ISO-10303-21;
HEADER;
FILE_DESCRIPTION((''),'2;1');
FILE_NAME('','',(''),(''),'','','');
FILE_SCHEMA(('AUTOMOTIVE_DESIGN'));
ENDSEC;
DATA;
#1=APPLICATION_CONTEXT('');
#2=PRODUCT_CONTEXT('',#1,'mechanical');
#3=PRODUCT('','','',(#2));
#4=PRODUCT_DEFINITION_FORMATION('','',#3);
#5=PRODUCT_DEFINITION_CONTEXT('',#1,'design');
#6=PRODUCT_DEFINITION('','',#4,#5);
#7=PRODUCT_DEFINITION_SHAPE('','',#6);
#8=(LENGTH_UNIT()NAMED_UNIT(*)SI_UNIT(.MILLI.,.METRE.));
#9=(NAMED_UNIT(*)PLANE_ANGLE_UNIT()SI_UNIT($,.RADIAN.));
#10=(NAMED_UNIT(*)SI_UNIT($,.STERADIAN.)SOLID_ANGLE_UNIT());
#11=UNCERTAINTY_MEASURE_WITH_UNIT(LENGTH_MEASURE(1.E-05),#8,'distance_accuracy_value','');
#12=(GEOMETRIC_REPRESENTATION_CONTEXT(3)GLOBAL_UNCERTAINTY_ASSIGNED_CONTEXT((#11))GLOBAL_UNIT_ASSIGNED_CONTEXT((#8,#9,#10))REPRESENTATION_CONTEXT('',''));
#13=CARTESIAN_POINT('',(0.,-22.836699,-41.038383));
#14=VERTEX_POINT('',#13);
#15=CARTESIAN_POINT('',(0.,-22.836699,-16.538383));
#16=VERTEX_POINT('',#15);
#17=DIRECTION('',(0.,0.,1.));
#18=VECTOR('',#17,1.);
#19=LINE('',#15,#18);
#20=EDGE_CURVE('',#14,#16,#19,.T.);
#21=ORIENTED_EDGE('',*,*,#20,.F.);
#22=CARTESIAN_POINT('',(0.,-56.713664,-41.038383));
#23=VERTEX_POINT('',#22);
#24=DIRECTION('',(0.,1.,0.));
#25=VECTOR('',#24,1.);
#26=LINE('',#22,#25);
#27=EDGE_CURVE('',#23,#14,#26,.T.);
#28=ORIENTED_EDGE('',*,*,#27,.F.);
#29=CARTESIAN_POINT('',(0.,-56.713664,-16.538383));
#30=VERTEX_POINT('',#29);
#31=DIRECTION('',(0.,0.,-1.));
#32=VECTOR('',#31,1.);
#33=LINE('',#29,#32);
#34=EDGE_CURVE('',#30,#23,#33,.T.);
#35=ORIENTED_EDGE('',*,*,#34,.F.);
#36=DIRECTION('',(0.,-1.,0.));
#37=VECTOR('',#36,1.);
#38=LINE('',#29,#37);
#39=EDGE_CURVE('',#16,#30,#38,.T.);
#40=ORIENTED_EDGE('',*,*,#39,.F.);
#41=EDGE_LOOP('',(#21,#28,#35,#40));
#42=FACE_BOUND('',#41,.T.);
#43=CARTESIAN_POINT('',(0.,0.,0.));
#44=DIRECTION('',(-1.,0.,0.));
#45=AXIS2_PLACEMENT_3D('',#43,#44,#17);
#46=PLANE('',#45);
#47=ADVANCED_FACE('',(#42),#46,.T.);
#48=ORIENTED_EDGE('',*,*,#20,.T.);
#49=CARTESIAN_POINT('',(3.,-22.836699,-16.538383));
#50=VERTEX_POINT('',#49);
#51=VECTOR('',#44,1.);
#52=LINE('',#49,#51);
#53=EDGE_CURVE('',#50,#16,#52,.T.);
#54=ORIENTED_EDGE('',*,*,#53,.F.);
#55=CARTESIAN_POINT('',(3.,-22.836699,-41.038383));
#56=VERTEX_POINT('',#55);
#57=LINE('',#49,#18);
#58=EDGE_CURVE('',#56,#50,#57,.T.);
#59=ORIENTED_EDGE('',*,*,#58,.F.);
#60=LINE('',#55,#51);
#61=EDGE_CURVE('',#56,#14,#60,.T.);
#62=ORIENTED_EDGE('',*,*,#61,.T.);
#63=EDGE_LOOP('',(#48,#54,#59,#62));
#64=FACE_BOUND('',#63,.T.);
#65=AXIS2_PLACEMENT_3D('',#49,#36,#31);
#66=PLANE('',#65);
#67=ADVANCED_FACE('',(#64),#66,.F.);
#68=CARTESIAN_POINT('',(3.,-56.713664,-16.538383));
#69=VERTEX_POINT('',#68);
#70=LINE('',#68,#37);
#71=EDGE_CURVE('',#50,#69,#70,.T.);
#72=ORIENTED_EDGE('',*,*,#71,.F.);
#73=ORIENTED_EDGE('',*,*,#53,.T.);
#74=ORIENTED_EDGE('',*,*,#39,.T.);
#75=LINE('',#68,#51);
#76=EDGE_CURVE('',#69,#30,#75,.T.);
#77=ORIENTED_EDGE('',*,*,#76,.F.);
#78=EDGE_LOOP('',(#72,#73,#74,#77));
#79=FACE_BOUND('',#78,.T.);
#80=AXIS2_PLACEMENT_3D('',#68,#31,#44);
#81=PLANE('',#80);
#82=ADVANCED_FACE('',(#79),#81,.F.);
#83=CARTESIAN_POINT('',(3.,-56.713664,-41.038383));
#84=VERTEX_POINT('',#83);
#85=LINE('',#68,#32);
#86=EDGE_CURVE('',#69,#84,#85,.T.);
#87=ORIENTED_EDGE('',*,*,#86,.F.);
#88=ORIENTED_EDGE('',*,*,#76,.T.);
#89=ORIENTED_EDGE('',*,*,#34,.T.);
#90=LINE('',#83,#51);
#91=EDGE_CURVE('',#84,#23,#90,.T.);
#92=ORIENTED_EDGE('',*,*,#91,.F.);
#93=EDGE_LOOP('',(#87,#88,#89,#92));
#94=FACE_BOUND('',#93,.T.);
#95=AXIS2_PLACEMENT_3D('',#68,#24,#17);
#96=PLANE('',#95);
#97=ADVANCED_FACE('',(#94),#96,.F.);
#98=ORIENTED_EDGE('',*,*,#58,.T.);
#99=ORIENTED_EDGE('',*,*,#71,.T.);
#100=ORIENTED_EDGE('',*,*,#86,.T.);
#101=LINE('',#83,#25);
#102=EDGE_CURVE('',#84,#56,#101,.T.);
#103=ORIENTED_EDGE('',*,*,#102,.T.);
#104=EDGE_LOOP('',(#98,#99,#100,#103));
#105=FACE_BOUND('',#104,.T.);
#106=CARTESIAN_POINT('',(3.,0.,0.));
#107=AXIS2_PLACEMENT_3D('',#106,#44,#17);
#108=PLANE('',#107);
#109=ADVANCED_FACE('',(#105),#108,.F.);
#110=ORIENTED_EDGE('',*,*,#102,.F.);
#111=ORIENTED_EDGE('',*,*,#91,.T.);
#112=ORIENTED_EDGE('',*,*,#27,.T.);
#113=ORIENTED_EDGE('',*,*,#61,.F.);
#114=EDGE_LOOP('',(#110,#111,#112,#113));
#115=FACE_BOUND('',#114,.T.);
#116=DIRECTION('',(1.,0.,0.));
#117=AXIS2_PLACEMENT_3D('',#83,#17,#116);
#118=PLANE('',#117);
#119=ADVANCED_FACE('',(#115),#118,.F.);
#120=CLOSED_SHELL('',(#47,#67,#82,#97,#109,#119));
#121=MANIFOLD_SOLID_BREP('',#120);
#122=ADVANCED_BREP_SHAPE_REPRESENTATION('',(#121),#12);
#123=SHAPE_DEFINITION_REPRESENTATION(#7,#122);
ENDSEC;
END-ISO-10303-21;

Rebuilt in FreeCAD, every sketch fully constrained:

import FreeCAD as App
import Part
import Sketcher
from FreeCAD import Vector
Q = App.Units.Quantity

doc = App.newDocument("Part")
body = doc.addObject("PartDesign::Body", "Body")

sketch1 = body.newObject("Sketcher::SketchObject", "Sketch")
sketch1.AttachmentSupport = (doc.getObject("YZ_Plane"), [""])
sketch1.MapMode = "FlatFace"
sketch1.addGeometry(Part.LineSegment(Vector(-22.836699, -16.538383, 0), Vector(-56.713664, -16.538383, 0)), False)
sketch1.addGeometry(Part.LineSegment(Vector(-56.713664, -16.538383, 0), Vector(-56.713664, -41.038383, 0)), False)
sketch1.addGeometry(Part.LineSegment(Vector(-56.713664, -41.038383, 0), Vector(-22.836699, -41.038383, 0)), False)
sketch1.addGeometry(Part.LineSegment(Vector(-22.836699, -41.038383, 0), Vector(-22.836699, -16.538383, 0)), False)
sketch1.addConstraint(Sketcher.Constraint("Coincident", 0, 2, 1, 1))
sketch1.addConstraint(Sketcher.Constraint("Coincident", 1, 2, 2, 1))
sketch1.addConstraint(Sketcher.Constraint("Coincident", 2, 2, 3, 1))
sketch1.addConstraint(Sketcher.Constraint("Coincident", 3, 2, 0, 1))
sketch1.addConstraint(Sketcher.Constraint("Horizontal", 0))
sketch1.addConstraint(Sketcher.Constraint("Vertical", 1))
sketch1.addConstraint(Sketcher.Constraint("Horizontal", 2))
sketch1.addConstraint(Sketcher.Constraint("Vertical", 3))
sketch1.addConstraint(Sketcher.Constraint("DistanceY", 1, 2, 1, 1, Q("24.5 mm")))
sketch1.addConstraint(Sketcher.Constraint("DistanceX", 2, 2, -1, 1, Q("22.836699 mm")))
sketch1.addConstraint(Sketcher.Constraint("DistanceX", 0, 2, 0, 1, Q("33.876965 mm")))
sketch1.addConstraint(Sketcher.Constraint("DistanceY", 0, 2, -1, 1, Q("16.538383 mm")))
pad1 = body.newObject("PartDesign::Pad", "Pad")
pad1.Profile = sketch1
pad1.Length = 3

doc.recompute()
